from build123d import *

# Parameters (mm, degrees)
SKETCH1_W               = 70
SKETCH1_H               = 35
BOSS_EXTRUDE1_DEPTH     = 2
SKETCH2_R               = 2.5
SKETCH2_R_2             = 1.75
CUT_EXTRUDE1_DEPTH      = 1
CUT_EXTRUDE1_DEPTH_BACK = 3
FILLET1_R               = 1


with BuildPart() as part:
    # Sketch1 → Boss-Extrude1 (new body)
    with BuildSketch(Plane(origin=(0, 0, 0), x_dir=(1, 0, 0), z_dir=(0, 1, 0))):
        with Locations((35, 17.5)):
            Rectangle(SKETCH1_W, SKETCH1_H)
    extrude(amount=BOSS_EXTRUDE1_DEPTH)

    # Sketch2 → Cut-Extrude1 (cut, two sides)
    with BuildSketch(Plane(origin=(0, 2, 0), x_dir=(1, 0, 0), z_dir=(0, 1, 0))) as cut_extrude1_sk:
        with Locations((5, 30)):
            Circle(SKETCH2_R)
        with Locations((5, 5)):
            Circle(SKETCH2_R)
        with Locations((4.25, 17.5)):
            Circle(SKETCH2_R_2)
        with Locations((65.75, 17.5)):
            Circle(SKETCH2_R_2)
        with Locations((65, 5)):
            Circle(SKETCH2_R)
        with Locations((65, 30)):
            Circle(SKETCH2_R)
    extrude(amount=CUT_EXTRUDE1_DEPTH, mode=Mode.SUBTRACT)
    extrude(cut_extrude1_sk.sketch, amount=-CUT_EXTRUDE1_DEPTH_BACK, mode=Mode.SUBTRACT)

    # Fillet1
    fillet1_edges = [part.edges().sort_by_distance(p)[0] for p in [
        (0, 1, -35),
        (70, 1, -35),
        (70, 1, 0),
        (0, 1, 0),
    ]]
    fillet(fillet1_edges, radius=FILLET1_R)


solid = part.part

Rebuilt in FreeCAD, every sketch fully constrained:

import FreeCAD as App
import Part
import Sketcher


def edges_at(feature, points):
    """Names of the edges that pass closest to the given points."""
    edges = feature.Shape.Edges
    near = lambda p: min(range(len(edges)), key=lambda i: edges[i].distToShape(Part.Vertex(*p))[0])
    return sorted({f"Edge{near(p) + 1}" for p in points})

doc = App.newDocument("Part")
params = doc.addObject("Spreadsheet::Sheet", "Params")
for row, (alias, value) in enumerate([
    ("sketch1_width", "70 mm"),
    ("sketch1_height", "35 mm"),
    ("pad1_length", "2 mm"),
    ("sketch2_diameter", "5 mm"),
    ("sketch2_diameter2", "3.5 mm"),
    ("fillet_radius", "1 mm"),
], start=1):
    params.set(f"A{row}", alias)
    params.set(f"B{row}", "=" + value)
    params.setAlias(f"B{row}", alias)

body = doc.addObject("PartDesign::Body", "Body")

# Sketch on XZ plane
sketch1 = body.newObject("Sketcher::SketchObject", "Sketch")
sketch1.AttachmentSupport = (doc.getObject("XZ_Plane"), [""])
sketch1.MapMode = "FlatFace"
sketch1.addGeometry([
    Part.LineSegment(App.Vector(0, -35, 0), App.Vector(0, 0, 0)),
    Part.LineSegment(App.Vector(0, 0, 0), App.Vector(70, 0, 0)),
    Part.LineSegment(App.Vector(70, 0, 0), App.Vector(70, -35, 0)),
    Part.LineSegment(App.Vector(70, -35, 0), App.Vector(0, -35, 0)),
], False)
sketch1.addConstraint([
    Sketcher.Constraint("Coincident", 0, 2, 1, 1),
    Sketcher.Constraint("Coincident", 1, 2, 2, 1),
    Sketcher.Constraint("Coincident", 2, 2, 3, 1),
    Sketcher.Constraint("Coincident", 3, 2, 0, 1),
    Sketcher.Constraint("Vertical", 0),
    Sketcher.Constraint("Horizontal", 1),
    Sketcher.Constraint("Vertical", 2),
    Sketcher.Constraint("Horizontal", 3),
    Sketcher.Constraint("Coincident", 0, 2, -1, 1),
    Sketcher.Constraint("DistanceX", 1, 1, 1, 2, 70.0),
    Sketcher.Constraint("DistanceY", 0, 1, 0, 2, 35.0),
])
sketch1.setExpression("Constraints[9]", "Params.sketch1_width")
sketch1.setExpression("Constraints[10]", "Params.sketch1_height")
pad1 = body.newObject("PartDesign::Pad", "Pad")
pad1.Profile = sketch1
pad1.setExpression("Length", "Params.pad1_length")
pad1.Reversed = True

# Sketch on XZ plane
sketch2 = body.newObject("Sketcher::SketchObject", "Sketch001")
sketch2.AttachmentSupport = (doc.getObject("XZ_Plane"), [""])
sketch2.MapMode = "FlatFace"
sketch2.AttachmentOffset = App.Placement(App.Vector(0, 0, -2), App.Rotation())
sketch2.addGeometry([
    Part.Circle(App.Vector(5, -30, 0), App.Vector(0, 0, 1), 2.5),  # 0
    Part.Circle(App.Vector(5, -5, 0), App.Vector(0, 0, 1), 2.5),  # 1
    Part.Circle(App.Vector(4.2, -17.5, 0), App.Vector(0, 0, 1), 1.8),  # 2
    Part.Circle(App.Vector(65.8, -17.5, 0), App.Vector(0, 0, 1), 1.8),  # 3
    Part.Circle(App.Vector(65, -5, 0), App.Vector(0, 0, 1), 2.5),  # 4
    Part.Circle(App.Vector(65, -30, 0), App.Vector(0, 0, 1), 2.5),  # 5
], False)
sketch2.addConstraint([
    Sketcher.Constraint("Equal", 0, 1),
    Sketcher.Constraint("Equal", 2, 3),
    Sketcher.Constraint("Equal", 1, 4),
    Sketcher.Constraint("Equal", 4, 5),
    Sketcher.Constraint("Horizontal", 2, 3, 3, 3),
    Sketcher.Constraint("Horizontal", 1, 3, 4, 3),
    Sketcher.Constraint("Horizontal", 0, 3, 5, 3),
    Sketcher.Constraint("Vertical", 0, 3, 1, 3),
    Sketcher.Constraint("Vertical", 4, 3, 5, 3),
    Sketcher.Constraint("Diameter", 0, 5.0),
    Sketcher.Constraint("Diameter", 2, 3.5),
    Sketcher.Constraint("DistanceX", -1, 1, 0, 3, 5.0),
    Sketcher.Constraint("DistanceY", 0, 3, -1, 1, 30.0),
    Sketcher.Constraint("DistanceY", 1, 3, -1, 1, 5.0),
    Sketcher.Constraint("DistanceX", -1, 1, 4, 3, 65.0),
    Sketcher.Constraint("DistanceY", 2, 3, -1, 1, 17.5),
    Sketcher.Constraint("DistanceX", 2, 3, 3, 3, 61.5),
    Sketcher.Constraint("DistanceX", -1, 1, 2, 3, 4.25),
])
sketch2.setExpression("Constraints[9]", "Params.sketch2_diameter")
sketch2.setExpression("Constraints[10]", "Params.sketch2_diameter2")
pocket1 = body.newObject("PartDesign::Pocket", "Pocket")
pocket1.Profile = sketch2
pocket1.Type = "ThroughAll"
pocket1.Midplane = True
doc.recompute()

fillet = body.newObject("PartDesign::Fillet", "Fillet")
fillet.Base = (pocket1, edges_at(pocket1, [
    (0, 1, -35),
    (70, 1, -35),
    (70, 1, 0),
    (0, 1, 0),
]))
fillet.setExpression("Radius", "Params.fillet_radius")

doc.recompute()
